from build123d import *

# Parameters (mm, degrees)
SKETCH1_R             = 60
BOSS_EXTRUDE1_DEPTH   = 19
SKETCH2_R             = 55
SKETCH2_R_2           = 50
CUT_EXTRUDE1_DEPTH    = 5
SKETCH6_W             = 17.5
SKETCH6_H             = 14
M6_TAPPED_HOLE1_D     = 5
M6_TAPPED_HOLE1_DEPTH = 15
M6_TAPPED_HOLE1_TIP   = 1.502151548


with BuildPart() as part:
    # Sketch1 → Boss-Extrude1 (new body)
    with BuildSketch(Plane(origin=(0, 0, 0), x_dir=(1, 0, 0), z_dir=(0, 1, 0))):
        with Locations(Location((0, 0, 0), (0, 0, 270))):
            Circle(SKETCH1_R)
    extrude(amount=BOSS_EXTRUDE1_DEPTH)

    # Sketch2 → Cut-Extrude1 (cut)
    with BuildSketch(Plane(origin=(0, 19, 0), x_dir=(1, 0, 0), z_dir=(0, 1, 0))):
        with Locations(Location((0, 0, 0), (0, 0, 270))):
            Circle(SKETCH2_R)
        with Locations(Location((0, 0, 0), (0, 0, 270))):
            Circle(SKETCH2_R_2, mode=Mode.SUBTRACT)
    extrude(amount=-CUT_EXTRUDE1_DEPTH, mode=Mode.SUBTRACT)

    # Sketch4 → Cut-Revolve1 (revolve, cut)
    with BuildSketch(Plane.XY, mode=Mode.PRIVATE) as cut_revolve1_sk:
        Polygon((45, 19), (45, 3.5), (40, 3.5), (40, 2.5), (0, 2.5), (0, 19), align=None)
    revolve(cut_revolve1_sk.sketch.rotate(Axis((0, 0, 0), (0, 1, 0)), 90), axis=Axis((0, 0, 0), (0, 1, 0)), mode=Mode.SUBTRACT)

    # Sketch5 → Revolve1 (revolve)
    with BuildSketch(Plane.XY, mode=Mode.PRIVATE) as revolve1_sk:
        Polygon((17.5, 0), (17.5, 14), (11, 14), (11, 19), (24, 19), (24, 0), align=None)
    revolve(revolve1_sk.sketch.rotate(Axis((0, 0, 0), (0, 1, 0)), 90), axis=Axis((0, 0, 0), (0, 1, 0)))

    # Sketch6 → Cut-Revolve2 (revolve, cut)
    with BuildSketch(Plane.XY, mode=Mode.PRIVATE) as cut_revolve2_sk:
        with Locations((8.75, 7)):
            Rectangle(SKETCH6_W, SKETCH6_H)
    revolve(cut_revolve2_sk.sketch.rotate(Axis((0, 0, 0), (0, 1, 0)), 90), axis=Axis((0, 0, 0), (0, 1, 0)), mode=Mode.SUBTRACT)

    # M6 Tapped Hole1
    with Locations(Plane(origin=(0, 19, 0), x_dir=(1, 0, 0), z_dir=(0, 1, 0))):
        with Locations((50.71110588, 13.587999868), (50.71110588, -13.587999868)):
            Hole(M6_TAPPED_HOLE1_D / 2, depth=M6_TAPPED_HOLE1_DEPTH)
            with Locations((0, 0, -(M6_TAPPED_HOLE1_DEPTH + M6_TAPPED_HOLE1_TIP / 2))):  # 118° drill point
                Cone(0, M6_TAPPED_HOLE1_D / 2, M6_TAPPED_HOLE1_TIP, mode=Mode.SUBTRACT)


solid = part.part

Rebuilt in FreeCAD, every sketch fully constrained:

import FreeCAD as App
import Part
import Sketcher

V = App.Vector

doc = App.newDocument("Part")
params = doc.addObject("Spreadsheet::Sheet", "Params")
for row, (alias, value) in enumerate([
    ("sketch1_diameter", "120 mm"),
    ("pad1_length", "19 mm"),
    ("sketch2_diameter", "110 mm"),
    ("sketch2_diameter2", "100 mm"),
    ("pocket1_length", "5 mm"),
    ("sketch3_width", "45 mm"),
    ("sketch3_width2", "40 mm"),
    ("sketch3_height", "1 mm"),
    ("sketch3_height2", "15.5 mm"),
    ("groove_angle", "360 deg"),
    ("sketch4_width", "13 mm"),
    ("sketch4_height", "14 mm"),
    ("sketch4_height2", "19 mm"),
    ("revolution_angle", "360 deg"),
    ("sketch5_height", "14 mm"),
    ("sketch5_width", "17.5 mm"),
    ("groove2_angle", "360 deg"),
    ("sketch6_diameter", "5 mm"),
    ("hole_diameter", "5 mm"),
    ("hole_depth", "15 mm"),
], start=1):
    params.set(f"A{row}", alias)
    params.set(f"B{row}", "=" + value)
    params.setAlias(f"B{row}", alias)

body = doc.addObject("PartDesign::Body", "Body")

sketch1 = body.newObject("Sketcher::SketchObject", "Sketch")
sketch1.AttachmentSupport = (doc.getObject("XZ_Plane"), [""])
sketch1.MapMode = "FlatFace"
sketch1.addGeometry(Part.Circle(V(0, 0, 0), V(0, 0, 1), 60), False)
sketch1.addConstraint(Sketcher.Constraint("Coincident", 0, 3, -1, 1))
sketch1.addConstraint(Sketcher.Constraint("Diameter", 0, 120.0))
sketch1.setExpression("Constraints[1]", "Params.sketch1_diameter")
pad1 = body.newObject("PartDesign::Pad", "Pad")
pad1.Profile = sketch1
pad1.setExpression("Length", "Params.pad1_length")
pad1.Reversed = True

sketch2 = body.newObject("Sketcher::SketchObject", "Sketch001")
sketch2.AttachmentSupport = (doc.getObject("XZ_Plane"), [""])
sketch2.MapMode = "FlatFace"
sketch2.AttachmentOffset = App.Placement(V(0, 0, -19), App.Rotation())
sketch2.addGeometry(Part.Circle(V(0, 0, 0), V(0, 0, 1), 55), False)
sketch2.addGeometry(Part.Circle(V(0, 0, 0), V(0, 0, 1), 50), False)
sketch2.addConstraint(Sketcher.Constraint("Coincident", 0, 3, -1, 1))
sketch2.addConstraint(Sketcher.Constraint("Coincident", 1, 3, -1, 1))
sketch2.addConstraint(Sketcher.Constraint("Diameter", 0, 110.0))
sketch2.addConstraint(Sketcher.Constraint("Diameter", 1, 100.0))
sketch2.setExpression("Constraints[2]", "Params.sketch2_diameter")
sketch2.setExpression("Constraints[3]", "Params.sketch2_diameter2")
pocket1 = body.newObject("PartDesign::Pocket", "Pocket")
pocket1.Profile = sketch2
pocket1.setExpression("Length", "Params.pocket1_length")
pocket1.Reversed = True

sketch3 = body.newObject("Sketcher::SketchObject", "Sketch002")
sketch3.AttachmentSupport = (doc.getObject("XY_Plane"), [""])
sketch3.MapMode = "FlatFace"
sketch3.addGeometry(Part.LineSegment(V(45, 3.5, 0), V(45, 19, 0)), False)
sketch3.addGeometry(Part.LineSegment(V(45, 19, 0), V(0, 19, 0)), False)
sketch3.addGeometry(Part.LineSegment(V(0, 19, 0), V(0, 2.5, 0)), False)
sketch3.addGeometry(Part.LineSegment(V(0, 2.5, 0), V(40, 2.5, 0)), False)
sketch3.addGeometry(Part.LineSegment(V(40, 2.5, 0), V(40, 3.5, 0)), False)
sketch3.addGeometry(Part.LineSegment(V(40, 3.5, 0), V(45, 3.5, 0)), False)
sketch3.addConstraint(Sketcher.Constraint("Coincident", 0, 2, 1, 1))
sketch3.addConstraint(Sketcher.Constraint("Coincident", 1, 2, 2, 1))
sketch3.addConstraint(Sketcher.Constraint("Coincident", 2, 2, 3, 1))
sketch3.addConstraint(Sketcher.Constraint("Coincident", 3, 2, 4, 1))
sketch3.addConstraint(Sketcher.Constraint("Coincident", 4, 2, 5, 1))
sketch3.addConstraint(Sketcher.Constraint("Coincident", 5, 2, 0, 1))
sketch3.addConstraint(Sketcher.Constraint("Vertical", 0))
sketch3.addConstraint(Sketcher.Constraint("Horizontal", 1))
sketch3.addConstraint(Sketcher.Constraint("Vertical", 2))
sketch3.addConstraint(Sketcher.Constraint("Horizontal", 3))
sketch3.addConstraint(Sketcher.Constraint("Vertical", 4))
sketch3.addConstraint(Sketcher.Constraint("Horizontal", 5))
sketch3.addConstraint(Sketcher.Constraint("PointOnObject", 1, 2, -2))
sketch3.addConstraint(Sketcher.Constraint("DistanceX", 1, 2, 1, 1, 45.0))
sketch3.addConstraint(Sketcher.Constraint("DistanceX", 3, 1, 3, 2, 40.0))
sketch3.addConstraint(Sketcher.Constraint("DistanceY", 4, 1, 4, 2, 1.0))
sketch3.addConstraint(Sketcher.Constraint("DistanceY", 0, 1, 0, 2, 15.5))
sketch3.addConstraint(Sketcher.Constraint("DistanceY", -1, 1, 0, 2, 19.0))
sketch3.setExpression("Constraints[13]", "Params.sketch3_width")
sketch3.setExpression("Constraints[14]", "Params.sketch3_width2")
sketch3.setExpression("Constraints[15]", "Params.sketch3_height")
sketch3.setExpression("Constraints[16]", "Params.sketch3_height2")
groove = body.newObject("PartDesign::Groove", "Groove")
groove.Profile = sketch3
groove.ReferenceAxis = (sketch3, ["V_Axis"])
groove.setExpression("Angle", "Params.groove_angle")

sketch4 = body.newObject("Sketcher::SketchObject", "Sketch003")
sketch4.AttachmentSupport = (doc.getObject("XY_Plane"), [""])
sketch4.MapMode = "FlatFace"
sketch4.addGeometry(Part.LineSegment(V(18, 14, 0), V(18, 0, 0)), False)
sketch4.addGeometry(Part.LineSegment(V(18, 0, 0), V(24, 0, 0)), False)
sketch4.addGeometry(Part.LineSegment(V(24, 0, 0), V(24, 19, 0)), False)
sketch4.addGeometry(Part.LineSegment(V(24, 19, 0), V(11, 19, 0)), False)
sketch4.addGeometry(Part.LineSegment(V(11, 19, 0), V(11, 14, 0)), False)
sketch4.addGeometry(Part.LineSegment(V(11, 14, 0), V(18, 14, 0)), False)
sketch4.addConstraint(Sketcher.Constraint("Coincident", 0, 2, 1, 1))
sketch4.addConstraint(Sketcher.Constraint("Coincident", 1, 2, 2, 1))
sketch4.addConstraint(Sketcher.Constraint("Coincident", 2, 2, 3, 1))
sketch4.addConstraint(Sketcher.Constraint("Coincident", 3, 2, 4, 1))
sketch4.addConstraint(Sketcher.Constraint("Coincident", 4, 2, 5, 1))
sketch4.addConstraint(Sketcher.Constraint("Coincident", 5, 2, 0, 1))
sketch4.addConstraint(Sketcher.Constraint("Vertical", 0))
sketch4.addConstraint(Sketcher.Constraint("Horizontal", 1))
sketch4.addConstraint(Sketcher.Constraint("Vertical", 2))
sketch4.addConstraint(Sketcher.Constraint("Horizontal", 3))
sketch4.addConstraint(Sketcher.Constraint("Vertical", 4))
sketch4.addConstraint(Sketcher.Constraint("Horizontal", 5))
sketch4.addConstraint(Sketcher.Constraint("PointOnObject", 0, 2, -1))
sketch4.addConstraint(Sketcher.Constraint("Equal", 1, 5))
sketch4.addConstraint(Sketcher.Constraint("DistanceX", 3, 2, 3, 1, 13.0))
sketch4.addConstraint(Sketcher.Constraint("DistanceY", 0, 2, 0, 1, 14.0))
sketch4.addConstraint(Sketcher.Constraint("DistanceY", 2, 1, 2, 2, 19.0))
sketch4.addConstraint(Sketcher.Constraint("DistanceX", -1, 1, 1, 2, 24.0))
sketch4.setExpression("Constraints[14]", "Params.sketch4_width")
sketch4.setExpression("Constraints[15]", "Params.sketch4_height")
sketch4.setExpression("Constraints[16]", "Params.sketch4_height2")
revolution = body.newObject("PartDesign::Revolution", "Revolution")
revolution.Profile = sketch4
revolution.ReferenceAxis = (sketch4, ["V_Axis"])
revolution.setExpression("Angle", "Params.revolution_angle")

sketch5 = body.newObject("Sketcher::SketchObject", "Sketch004")
sketch5.AttachmentSupport = (doc.getObject("XY_Plane"), [""])
sketch5.MapMode = "FlatFace"
sketch5.addGeometry(Part.LineSegment(V(0, 14, 0), V(0, 0, 0)), False)
sketch5.addGeometry(Part.LineSegment(V(0, 0, 0), V(18, 0, 0)), False)
sketch5.addGeometry(Part.LineSegment(V(18, 0, 0), V(18, 14, 0)), False)
sketch5.addGeometry(Part.LineSegment(V(18, 14, 0), V(0, 14, 0)), False)
sketch5.addConstraint(Sketcher.Constraint("Coincident", 0, 2, 1, 1))
sketch5.addConstraint(Sketcher.Constraint("Coincident", 1, 2, 2, 1))
sketch5.addConstraint(Sketcher.Constraint("Coincident", 2, 2, 3, 1))
sketch5.addConstraint(Sketcher.Constraint("Coincident", 3, 2, 0, 1))
sketch5.addConstraint(Sketcher.Constraint("Vertical", 0))
sketch5.addConstraint(Sketcher.Constraint("Horizontal", 1))
sketch5.addConstraint(Sketcher.Constraint("Vertical", 2))
sketch5.addConstraint(Sketcher.Constraint("Horizontal", 3))
sketch5.addConstraint(Sketcher.Constraint("Coincident", 0, 2, -1, 1))
sketch5.addConstraint(Sketcher.Constraint("DistanceY", 0, 2, 0, 1, 14.0))
sketch5.addConstraint(Sketcher.Constraint("DistanceX", 1, 1, 1, 2, 17.5))
sketch5.setExpression("Constraints[9]", "Params.sketch5_height")
sketch5.setExpression("Constraints[10]", "Params.sketch5_width")
groove2 = body.newObject("PartDesign::Groove", "Groove001")
groove2.Profile = sketch5
groove2.ReferenceAxis = (sketch5, ["V_Axis"])
groove2.setExpression("Angle", "Params.groove2_angle")

sketch6 = body.newObject("Sketcher::SketchObject", "Sketch005")
sketch6.AttachmentSupport = (doc.getObject("XZ_Plane"), [""])
sketch6.MapMode = "FlatFace"
sketch6.AttachmentOffset = App.Placement(V(0, 0, -19), App.Rotation())
sketch6.addGeometry(Part.Circle(V(50.7, -13.6, 0), V(0, 0, 1), 2.5), False)
sketch6.addGeometry(Part.Circle(V(50.7, 13.6, 0), V(0, 0, 1), 2.5), False)
sketch6.addConstraint(Sketcher.Constraint("Equal", 0, 1))
sketch6.addConstraint(Sketcher.Constraint("Symmetric", 0, 3, 1, 3, -1))
sketch6.addConstraint(Sketcher.Constraint("Diameter", 0, 5.0))
sketch6.addConstraint(Sketcher.Constraint("DistanceY", 0, 3, -1, 1, 13.588))
sketch6.addConstraint(Sketcher.Constraint("DistanceX", -1, 1, 0, 3, 50.711106))
sketch6.setExpression("Constraints[2]", "Params.sketch6_diameter")
doc.recompute()
hole = body.newObject("PartDesign::Hole", "Hole")
hole.Profile = sketch6
hole.ThreadType = "None"
hole.setExpression("Diameter", "Params.hole_diameter")
hole.DepthType = "Dimension"
hole.setExpression("Depth", "Params.hole_depth")
hole.DrillPoint = "Angled"
hole.DrillPointAngle = 118
hole.Reversed = True

doc.recompute()
